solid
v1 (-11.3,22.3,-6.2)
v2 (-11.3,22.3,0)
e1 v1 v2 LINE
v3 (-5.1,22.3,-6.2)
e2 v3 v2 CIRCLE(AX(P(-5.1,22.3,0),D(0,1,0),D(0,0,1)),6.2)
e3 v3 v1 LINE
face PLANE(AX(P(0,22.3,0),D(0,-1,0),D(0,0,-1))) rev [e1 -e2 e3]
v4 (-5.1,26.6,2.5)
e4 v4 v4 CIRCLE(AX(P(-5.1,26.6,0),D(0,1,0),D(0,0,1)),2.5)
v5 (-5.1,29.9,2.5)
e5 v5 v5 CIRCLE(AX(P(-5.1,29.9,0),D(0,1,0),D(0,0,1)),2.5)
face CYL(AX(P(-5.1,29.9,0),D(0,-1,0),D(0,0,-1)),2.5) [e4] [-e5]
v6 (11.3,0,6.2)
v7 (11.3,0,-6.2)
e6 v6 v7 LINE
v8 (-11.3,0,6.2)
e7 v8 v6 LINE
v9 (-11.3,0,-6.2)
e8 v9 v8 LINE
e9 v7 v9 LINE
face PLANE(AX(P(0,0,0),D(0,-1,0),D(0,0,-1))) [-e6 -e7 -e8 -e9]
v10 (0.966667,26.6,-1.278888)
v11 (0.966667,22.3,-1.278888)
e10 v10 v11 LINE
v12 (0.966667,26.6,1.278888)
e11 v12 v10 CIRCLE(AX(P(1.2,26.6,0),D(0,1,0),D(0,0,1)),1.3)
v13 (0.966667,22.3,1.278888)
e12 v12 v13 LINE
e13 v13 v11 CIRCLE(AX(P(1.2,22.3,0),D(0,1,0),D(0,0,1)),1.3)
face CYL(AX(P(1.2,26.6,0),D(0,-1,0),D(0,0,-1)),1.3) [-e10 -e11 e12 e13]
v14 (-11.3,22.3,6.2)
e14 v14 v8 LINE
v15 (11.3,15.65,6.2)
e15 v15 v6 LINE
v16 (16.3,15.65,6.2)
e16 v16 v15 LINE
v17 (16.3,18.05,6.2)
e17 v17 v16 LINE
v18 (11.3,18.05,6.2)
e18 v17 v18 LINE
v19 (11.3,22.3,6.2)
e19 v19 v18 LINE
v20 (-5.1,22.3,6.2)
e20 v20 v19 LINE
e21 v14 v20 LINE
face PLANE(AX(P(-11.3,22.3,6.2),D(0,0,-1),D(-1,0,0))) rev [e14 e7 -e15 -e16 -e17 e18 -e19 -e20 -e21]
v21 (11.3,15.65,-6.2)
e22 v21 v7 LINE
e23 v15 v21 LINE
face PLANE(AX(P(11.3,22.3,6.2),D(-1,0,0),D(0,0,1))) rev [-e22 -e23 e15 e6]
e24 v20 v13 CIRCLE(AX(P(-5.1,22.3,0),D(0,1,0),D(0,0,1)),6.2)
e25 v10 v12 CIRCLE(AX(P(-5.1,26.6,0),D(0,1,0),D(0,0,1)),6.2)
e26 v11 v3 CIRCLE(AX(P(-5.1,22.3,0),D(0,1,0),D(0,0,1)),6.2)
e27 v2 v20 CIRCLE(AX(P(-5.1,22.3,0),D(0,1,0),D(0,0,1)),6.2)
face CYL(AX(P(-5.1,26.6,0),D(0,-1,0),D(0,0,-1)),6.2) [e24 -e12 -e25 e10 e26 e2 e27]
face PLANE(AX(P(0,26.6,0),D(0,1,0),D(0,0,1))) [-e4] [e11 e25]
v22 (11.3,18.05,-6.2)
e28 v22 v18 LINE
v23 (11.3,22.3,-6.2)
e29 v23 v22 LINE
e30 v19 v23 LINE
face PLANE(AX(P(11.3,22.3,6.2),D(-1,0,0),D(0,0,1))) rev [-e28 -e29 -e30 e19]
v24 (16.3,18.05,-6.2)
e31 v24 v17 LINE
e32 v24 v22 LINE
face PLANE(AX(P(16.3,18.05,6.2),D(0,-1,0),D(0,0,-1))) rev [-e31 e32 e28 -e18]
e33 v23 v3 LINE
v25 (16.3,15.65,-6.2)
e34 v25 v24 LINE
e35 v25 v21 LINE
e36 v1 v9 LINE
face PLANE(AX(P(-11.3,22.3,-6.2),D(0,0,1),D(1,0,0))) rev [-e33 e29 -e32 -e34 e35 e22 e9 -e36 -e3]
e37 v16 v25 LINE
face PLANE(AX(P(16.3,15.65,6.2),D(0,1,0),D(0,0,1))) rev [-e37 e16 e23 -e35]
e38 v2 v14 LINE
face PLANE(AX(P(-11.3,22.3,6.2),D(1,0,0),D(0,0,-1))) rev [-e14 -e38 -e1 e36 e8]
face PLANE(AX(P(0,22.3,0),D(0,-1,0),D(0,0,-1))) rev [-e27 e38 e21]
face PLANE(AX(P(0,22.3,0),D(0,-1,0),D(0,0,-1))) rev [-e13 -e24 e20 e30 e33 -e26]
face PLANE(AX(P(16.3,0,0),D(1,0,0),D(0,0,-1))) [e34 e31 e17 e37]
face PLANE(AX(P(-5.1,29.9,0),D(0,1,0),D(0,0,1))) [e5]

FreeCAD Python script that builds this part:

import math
import FreeCAD as App
import Part
import Sketcher
from FreeCAD import Vector


def add_polygon(sketch, points):
    """Adds a closed chain of lines whose ends are joined by coincident constraints."""
    first, n = sketch.GeometryCount, len(points)
    for a, b in zip(points, points[1:] + points[:1]):
        sketch.addGeometry(Part.LineSegment(App.Vector(*a, 0), App.Vector(*b, 0)), False)
    for i in range(n):
        sketch.addConstraint(Sketcher.Constraint("Coincident", first + i, 2, first + (i + 1) % n, 1))

doc = App.newDocument("Part")
params = doc.addObject("Spreadsheet::Sheet", "Params")
for row, (alias, value) in enumerate([
    ("sketch1_width", "22.6 mm"),
    ("sketch1_height", "12.4 mm"),
    ("pad1_length", "22.3 mm"),
    ("sketch2_width", "2.4 mm"),
    ("sketch2_height", "12.4 mm"),
    ("pad2_length", "5 mm"),
    ("sketch3_radius", "1.3 mm"),
    ("sketch3_radius2", "6.2 mm"),
    ("pad3_length", "4.3 mm"),
    ("sketch4_diameter", "5 mm"),
    ("pad4_length", "3.3 mm"),
], start=1):
    params.set(f"A{row}", alias)
    params.set(f"B{row}", "=" + value)
    params.setAlias(f"B{row}", alias)

body = doc.addObject("PartDesign::Body", "Body")

sketch1 = body.newObject("Sketcher::SketchObject", "Sketch")
sketch1.AttachmentSupport = (doc.getObject("XZ_Plane"), [""])
sketch1.MapMode = "FlatFace"
add_polygon(sketch1, [(-11, -6), (-11, 6), (11, 6), (11, -6)])
sketch1.addConstraint([
    Sketcher.Constraint("Vertical", 0),
    Sketcher.Constraint("Horizontal", 1),
    Sketcher.Constraint("Vertical", 2),
    Sketcher.Constraint("Horizontal", 3),
    Sketcher.Constraint("Symmetric", 0, 2, 2, 2, -1, 1),
    Sketcher.Constraint("DistanceX", 1, 1, 1, 2, 22.6),
    Sketcher.Constraint("DistanceY", 0, 1, 0, 2, 12.4),
])
sketch1.setExpression("Constraints[9]", "Params.sketch1_width")
sketch1.setExpression("Constraints[10]", "Params.sketch1_height")
pad1 = body.newObject("PartDesign::Pad", "Pad")
pad1.Profile = sketch1
pad1.setExpression("Length", "Params.pad1_length")
pad1.Reversed = True

sketch2 = body.newObject("Sketcher::SketchObject", "Sketch001")
sketch2.AttachmentSupport = (doc.getObject("YZ_Plane"), [""])
sketch2.MapMode = "FlatFace"
sketch2.AttachmentOffset = App.Placement(Vector(0, 0, 11.3), App.Rotation())
add_polygon(sketch2, [(18.1, 6.2), (15.7, 6.2), (15.7, -6.2), (18.1, -6.2)])
sketch2.addConstraint([
    Sketcher.Constraint("Horizontal", 0),
    Sketcher.Constraint("Vertical", 1),
    Sketcher.Constraint("Horizontal", 2),
    Sketcher.Constraint("Vertical", 3),
    Sketcher.Constraint("DistanceX", 0, 2, 0, 1, 2.4),
    Sketcher.Constraint("DistanceY", 1, 2, 1, 1, 12.4),
    Sketcher.Constraint("DistanceY", -1, 1, 0, 2, 6.2),
    Sketcher.Constraint("DistanceX", -1, 1, 0, 2, 15.65),
])
sketch2.setExpression("Constraints[8]", "Params.sketch2_width")
sketch2.setExpression("Constraints[9]", "Params.sketch2_height")
pad2 = body.newObject("PartDesign::Pad", "Pad001")
pad2.Profile = sketch2
pad2.setExpression("Length", "Params.pad2_length")

sketch3 = body.newObject("Sketcher::SketchObject", "Sketch002")
sketch3.AttachmentSupport = (doc.getObject("XZ_Plane"), [""])
sketch3.MapMode = "FlatFace"
sketch3.AttachmentOffset = App.Placement(Vector(0, 0, -22.3), App.Rotation())
sketch3.addGeometry([
    Part.ArcOfCircle(Part.Circle(Vector(1.2, 0, 0), Vector(0, 0, 1), 1.3), math.radians(-100), math.radians(100)),
    Part.ArcOfCircle(Part.Circle(Vector(-5.1, 0, 0), Vector(0, 0, 1), 6.2), math.radians(12), math.radians(348)),
], False)
sketch3.addConstraint([
    Sketcher.Constraint("Coincident", 0, 1, 1, 2),
    Sketcher.Constraint("Coincident", 1, 1, 0, 2),
    Sketcher.Constraint("Symmetric", 0, 1, 1, 1, -1),
    Sketcher.Constraint("Radius", 0, 1.3),
    Sketcher.Constraint("Radius", 1, 6.2),
    Sketcher.Constraint("DistanceX", -1, 1, 0, 3, 1.2),
    Sketcher.Constraint("DistanceX", 1, 3, -1, 1, 5.1),
])
sketch3.setExpression("Constraints[3]", "Params.sketch3_radius")
sketch3.setExpression("Constraints[4]", "Params.sketch3_radius2")
pad3 = body.newObject("PartDesign::Pad", "Pad002")
pad3.Profile = sketch3
pad3.setExpression("Length", "Params.pad3_length")
pad3.Reversed = True

sketch4 = body.newObject("Sketcher::SketchObject", "Sketch003")
sketch4.AttachmentSupport = (doc.getObject("XZ_Plane"), [""])
sketch4.MapMode = "FlatFace"
sketch4.AttachmentOffset = App.Placement(Vector(0, 0, -26.6), App.Rotation())
sketch4.addGeometry(Part.Circle(Vector(-5.1, 0, 0), Vector(0, 0, 1), 2.5), False)
sketch4.addConstraint([
    Sketcher.Constraint("PointOnObject", 0, 3, -1),
    Sketcher.Constraint("Diameter", 0, 5.0),
    Sketcher.Constraint("DistanceX", 0, 3, -1, 1, 5.1),
])
sketch4.setExpression("Constraints[1]", "Params.sketch4_diameter")
pad4 = body.newObject("PartDesign::Pad", "Pad003")
pad4.Profile = sketch4
pad4.setExpression("Length", "Params.pad4_length")
pad4.Reversed = True

doc.recompute()
